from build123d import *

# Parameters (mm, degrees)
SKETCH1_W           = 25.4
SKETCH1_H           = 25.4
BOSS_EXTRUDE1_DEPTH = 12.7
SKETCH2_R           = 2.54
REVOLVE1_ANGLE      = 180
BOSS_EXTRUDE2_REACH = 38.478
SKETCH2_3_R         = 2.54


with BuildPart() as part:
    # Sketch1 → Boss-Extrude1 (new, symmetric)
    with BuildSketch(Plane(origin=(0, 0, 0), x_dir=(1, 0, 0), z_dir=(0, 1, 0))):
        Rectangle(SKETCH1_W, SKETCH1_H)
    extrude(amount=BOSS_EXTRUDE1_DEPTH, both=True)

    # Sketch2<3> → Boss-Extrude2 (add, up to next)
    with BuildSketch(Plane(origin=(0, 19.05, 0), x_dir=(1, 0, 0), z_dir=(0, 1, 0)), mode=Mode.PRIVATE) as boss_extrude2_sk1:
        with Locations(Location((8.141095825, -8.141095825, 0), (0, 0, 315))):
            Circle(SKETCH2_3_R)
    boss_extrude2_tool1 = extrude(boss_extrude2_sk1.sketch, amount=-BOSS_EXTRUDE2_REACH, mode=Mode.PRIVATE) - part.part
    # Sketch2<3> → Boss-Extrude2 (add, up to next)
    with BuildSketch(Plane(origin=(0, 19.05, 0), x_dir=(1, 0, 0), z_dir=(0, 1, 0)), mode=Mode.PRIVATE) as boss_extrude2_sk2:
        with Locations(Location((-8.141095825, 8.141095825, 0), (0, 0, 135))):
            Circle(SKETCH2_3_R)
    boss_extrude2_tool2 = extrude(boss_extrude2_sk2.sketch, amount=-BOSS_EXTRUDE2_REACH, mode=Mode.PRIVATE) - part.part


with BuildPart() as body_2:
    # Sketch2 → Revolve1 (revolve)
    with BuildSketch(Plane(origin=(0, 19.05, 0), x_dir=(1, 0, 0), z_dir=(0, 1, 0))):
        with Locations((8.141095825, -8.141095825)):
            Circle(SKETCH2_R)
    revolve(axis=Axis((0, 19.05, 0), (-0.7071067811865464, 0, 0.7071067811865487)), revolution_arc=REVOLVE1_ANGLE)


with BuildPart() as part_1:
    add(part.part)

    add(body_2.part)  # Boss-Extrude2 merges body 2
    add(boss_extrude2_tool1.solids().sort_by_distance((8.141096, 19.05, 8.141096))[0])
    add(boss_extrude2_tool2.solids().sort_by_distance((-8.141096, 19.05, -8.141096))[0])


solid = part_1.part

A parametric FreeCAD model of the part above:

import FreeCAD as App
import Part
import Sketcher

V = App.Vector
Q = App.Units.Quantity


def add_polygon(sketch, points):
    """Adds a closed chain of lines whose ends are joined by coincident constraints."""
    first, n = sketch.GeometryCount, len(points)
    for a, b in zip(points, points[1:] + points[:1]):
        sketch.addGeometry(Part.LineSegment(App.Vector(*a, 0), App.Vector(*b, 0)), False)
    for i in range(n):
        sketch.addConstraint(Sketcher.Constraint("Coincident", first + i, 2, first + (i + 1) % n, 1))

doc = App.newDocument("Part")
body = doc.addObject("PartDesign::Body", "Body")

sketch1 = doc.addObject("Sketcher::SketchObject", "Sketch")
body.addObject(sketch1)
sketch1.AttachmentSupport = (doc.XZ_Plane, [""])
sketch1.MapMode = "FlatFace"
add_polygon(sketch1, [(-13, -13), (-13, 13), (13, 13), (13, -13)])
sketch1.addConstraint(Sketcher.Constraint("Vertical", 0))
sketch1.addConstraint(Sketcher.Constraint("Horizontal", 1))
sketch1.addConstraint(Sketcher.Constraint("Vertical", 2))
sketch1.addConstraint(Sketcher.Constraint("Horizontal", 3))
sketch1.addConstraint(Sketcher.Constraint("Symmetric", 0, 2, 2, 2, -1, 1))
sketch1.addConstraint(Sketcher.Constraint("Equal", 3, 0))
sketch1.addConstraint(Sketcher.Constraint("DistanceX", 1, 1, 1, 2, Q("1 in")))
pad1 = doc.addObject("PartDesign::Pad", "Pad")
body.addObject(pad1)
pad1.Profile = sketch1
pad1.Length = Q("1 in")
pad1.Midplane = True
body2 = doc.addObject("PartDesign::Body", "Body001")

sketch2 = doc.addObject("Sketcher::SketchObject", "Sketch001")
body2.addObject(sketch2)
sketch2.AttachmentSupport = (doc.getObject("XZ_Plane001"), [""])
sketch2.MapMode = "FlatFace"
sketch2.AttachmentOffset = App.Placement(V(0, 0, -0.75 * 25.4), App.Rotation())
sketch2.addGeometry(Part.Circle(V(8.1, 8.1, 0), V(0, 0, 1), 2.5), False)
sketch2.addGeometry(Part.LineSegment(V(0, 0, 0), V(-7.1, 7.1, 0)), True)
sketch2.addConstraint(Sketcher.Constraint("Coincident", 1, 1, -1, 1))
sketch2.addConstraint(Sketcher.Constraint("Diameter", 0, Q("0.2 in")))
sketch2.addConstraint(Sketcher.Constraint("Angle", 1, Q("135 deg")))
sketch2.addConstraint(Sketcher.Constraint("Distance", 1, 10.0))
sketch2.addConstraint(Sketcher.Constraint("DistanceY", 1, 2, 0, 3, 1.070028))
sketch2.addConstraint(Sketcher.Constraint("DistanceX", -1, 1, 0, 3, 8.141096))
revolution = doc.addObject("PartDesign::Revolution", "Revolution")
body2.addObject(revolution)
revolution.Profile = sketch2
revolution.ReferenceAxis = (sketch2, ["Axis0"])
revolution.Angle = 180
body.AllowCompound = True
doc.recompute()

boolean = doc.addObject("PartDesign::Boolean", "Boolean")
body.addObject(boolean)
boolean.Type = "Fuse"
boolean.addObjects([body2])

sketch3 = doc.addObject("Sketcher::SketchObject", "Sketch002")
body.addObject(sketch3)
sketch3.AttachmentSupport = (doc.XZ_Plane, [""])
sketch3.MapMode = "FlatFace"
sketch3.AttachmentOffset = App.Placement(V(0, 0, -0.75 * 25.4), App.Rotation())
sketch3.addGeometry(Part.Circle(V(8.1, 8.1, 0), V(0, 0, 1), 2.5), False)
sketch3.addConstraint(Sketcher.Constraint("Diameter", 0, Q("0.2 in")))
sketch3.addConstraint(Sketcher.Constraint("DistanceX", -1, 1, 0, 3, 8.141096))
sketch3.addConstraint(Sketcher.Constraint("DistanceY", -1, 1, 0, 3, 8.141096))
pad2 = doc.addObject("PartDesign::Pad", "Pad001")
body.addObject(pad2)
pad2.Profile = sketch3
pad2.Type = "UpToFirst"

sketch4 = doc.addObject("Sketcher::SketchObject", "Sketch003")
body.addObject(sketch4)
sketch4.AttachmentSupport = (doc.XZ_Plane, [""])
sketch4.MapMode = "FlatFace"
sketch4.AttachmentOffset = App.Placement(V(0, 0, -0.75 * 25.4), App.Rotation())
sketch4.addGeometry(Part.Circle(V(-8.1, -8.1, 0), V(0, 0, 1), 2.5), False)
sketch4.addConstraint(Sketcher.Constraint("Diameter", 0, Q("0.2 in")))
sketch4.addConstraint(Sketcher.Constraint("DistanceX", 0, 3, -1, 1, 8.141096))
sketch4.addConstraint(Sketcher.Constraint("DistanceY", 0, 3, -1, 1, 8.141096))
pad3 = doc.addObject("PartDesign::Pad", "Pad002")
body.addObject(pad3)
pad3.Profile = sketch4
pad3.Type = "UpToFirst"

doc.recompute()
